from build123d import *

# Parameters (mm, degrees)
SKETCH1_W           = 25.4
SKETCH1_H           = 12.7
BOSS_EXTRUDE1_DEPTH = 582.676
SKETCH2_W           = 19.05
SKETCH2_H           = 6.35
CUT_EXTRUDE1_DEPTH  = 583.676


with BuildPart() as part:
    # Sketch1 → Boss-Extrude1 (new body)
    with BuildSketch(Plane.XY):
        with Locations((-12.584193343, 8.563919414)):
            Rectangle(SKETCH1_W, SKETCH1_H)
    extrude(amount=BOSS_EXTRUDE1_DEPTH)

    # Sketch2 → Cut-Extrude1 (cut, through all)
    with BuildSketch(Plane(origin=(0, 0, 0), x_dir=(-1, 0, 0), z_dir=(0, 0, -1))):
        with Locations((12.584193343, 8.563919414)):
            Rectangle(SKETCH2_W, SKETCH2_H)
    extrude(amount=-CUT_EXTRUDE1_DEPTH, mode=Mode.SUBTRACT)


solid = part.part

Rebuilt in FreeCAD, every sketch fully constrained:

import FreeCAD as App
import Part
import Sketcher
Q = App.Units.Quantity

doc = App.newDocument("Part")
body = doc.addObject("PartDesign::Body", "Body")

# Sketch on XY plane
sketch1 = body.newObject("Sketcher::SketchObject", "Sketch")
sketch1.AttachmentSupport = (doc.getObject("XY_Plane"), [""])
sketch1.MapMode = "FlatFace"
sketch1.addGeometry(Part.LineSegment(App.Vector(-25.284193, 14.913919, 0), App.Vector(-25.284193, 2.213919, 0)), False)
sketch1.addGeometry(Part.LineSegment(App.Vector(-25.284193, 2.213919, 0), App.Vector(0.115807, 2.213919, 0)), False)
sketch1.addGeometry(Part.LineSegment(App.Vector(0.115807, 2.213919, 0), App.Vector(0.115807, 14.913919, 0)), False)
sketch1.addGeometry(Part.LineSegment(App.Vector(0.115807, 14.913919, 0), App.Vector(-25.284193, 14.913919, 0)), False)
sketch1.addConstraint(Sketcher.Constraint("Coincident", 0, 2, 1, 1))
sketch1.addConstraint(Sketcher.Constraint("Coincident", 1, 2, 2, 1))
sketch1.addConstraint(Sketcher.Constraint("Coincident", 2, 2, 3, 1))
sketch1.addConstraint(Sketcher.Constraint("Coincident", 3, 2, 0, 1))
sketch1.addConstraint(Sketcher.Constraint("Vertical", 0))
sketch1.addConstraint(Sketcher.Constraint("Horizontal", 1))
sketch1.addConstraint(Sketcher.Constraint("Vertical", 2))
sketch1.addConstraint(Sketcher.Constraint("Horizontal", 3))
sketch1.addConstraint(Sketcher.Constraint("DistanceX", 1, 1, 1, 2, Q("1 in")))
sketch1.addConstraint(Sketcher.Constraint("DistanceY", 0, 2, 0, 1, Q("0.5 in")))
sketch1.addConstraint(Sketcher.Constraint("DistanceY", -1, 1, 0, 2, 2.213919))
sketch1.addConstraint(Sketcher.Constraint("DistanceX", 0, 2, -1, 1, 25.284193))
pad1 = body.newObject("PartDesign::Pad", "Pad")
pad1.Profile = sketch1
pad1.Length = Q("22.94 in")

# Sketch on XY plane
sketch2 = body.newObject("Sketcher::SketchObject", "Sketch001")
sketch2.AttachmentSupport = (doc.getObject("XY_Plane"), [""])
sketch2.MapMode = "FlatFace"
sketch2.addGeometry(Part.LineSegment(App.Vector(-3.059193, 11.738919, 0), App.Vector(-3.059193, 5.388919, 0)), False)
sketch2.addGeometry(Part.LineSegment(App.Vector(-3.059193, 5.388919, 0), App.Vector(-22.109193, 5.388919, 0)), False)
sketch2.addGeometry(Part.LineSegment(App.Vector(-22.109193, 5.388919, 0), App.Vector(-22.109193, 11.738919, 0)), False)
sketch2.addGeometry(Part.LineSegment(App.Vector(-22.109193, 11.738919, 0), App.Vector(-3.059193, 11.738919, 0)), False)
sketch2.addConstraint(Sketcher.Constraint("Coincident", 0, 2, 1, 1))
sketch2.addConstraint(Sketcher.Constraint("Coincident", 1, 2, 2, 1))
sketch2.addConstraint(Sketcher.Constraint("Coincident", 2, 2, 3, 1))
sketch2.addConstraint(Sketcher.Constraint("Coincident", 3, 2, 0, 1))
sketch2.addConstraint(Sketcher.Constraint("Vertical", 0))
sketch2.addConstraint(Sketcher.Constraint("Horizontal", 1))
sketch2.addConstraint(Sketcher.Constraint("Vertical", 2))
sketch2.addConstraint(Sketcher.Constraint("Horizontal", 3))
sketch2.addConstraint(Sketcher.Constraint("DistanceX", 1, 2, 1, 1, Q("0.75 in")))
sketch2.addConstraint(Sketcher.Constraint("DistanceY", 0, 2, 0, 1, Q("0.25 in")))
sketch2.addConstraint(Sketcher.Constraint("DistanceY", -1, 1, 0, 2, 5.388919))
sketch2.addConstraint(Sketcher.Constraint("DistanceX", 0, 2, -1, 1, 3.059193))
pocket1 = body.newObject("PartDesign::Pocket", "Pocket")
pocket1.Profile = sketch2
pocket1.Type = "ThroughAll"
pocket1.Reversed = True

doc.recompute()
